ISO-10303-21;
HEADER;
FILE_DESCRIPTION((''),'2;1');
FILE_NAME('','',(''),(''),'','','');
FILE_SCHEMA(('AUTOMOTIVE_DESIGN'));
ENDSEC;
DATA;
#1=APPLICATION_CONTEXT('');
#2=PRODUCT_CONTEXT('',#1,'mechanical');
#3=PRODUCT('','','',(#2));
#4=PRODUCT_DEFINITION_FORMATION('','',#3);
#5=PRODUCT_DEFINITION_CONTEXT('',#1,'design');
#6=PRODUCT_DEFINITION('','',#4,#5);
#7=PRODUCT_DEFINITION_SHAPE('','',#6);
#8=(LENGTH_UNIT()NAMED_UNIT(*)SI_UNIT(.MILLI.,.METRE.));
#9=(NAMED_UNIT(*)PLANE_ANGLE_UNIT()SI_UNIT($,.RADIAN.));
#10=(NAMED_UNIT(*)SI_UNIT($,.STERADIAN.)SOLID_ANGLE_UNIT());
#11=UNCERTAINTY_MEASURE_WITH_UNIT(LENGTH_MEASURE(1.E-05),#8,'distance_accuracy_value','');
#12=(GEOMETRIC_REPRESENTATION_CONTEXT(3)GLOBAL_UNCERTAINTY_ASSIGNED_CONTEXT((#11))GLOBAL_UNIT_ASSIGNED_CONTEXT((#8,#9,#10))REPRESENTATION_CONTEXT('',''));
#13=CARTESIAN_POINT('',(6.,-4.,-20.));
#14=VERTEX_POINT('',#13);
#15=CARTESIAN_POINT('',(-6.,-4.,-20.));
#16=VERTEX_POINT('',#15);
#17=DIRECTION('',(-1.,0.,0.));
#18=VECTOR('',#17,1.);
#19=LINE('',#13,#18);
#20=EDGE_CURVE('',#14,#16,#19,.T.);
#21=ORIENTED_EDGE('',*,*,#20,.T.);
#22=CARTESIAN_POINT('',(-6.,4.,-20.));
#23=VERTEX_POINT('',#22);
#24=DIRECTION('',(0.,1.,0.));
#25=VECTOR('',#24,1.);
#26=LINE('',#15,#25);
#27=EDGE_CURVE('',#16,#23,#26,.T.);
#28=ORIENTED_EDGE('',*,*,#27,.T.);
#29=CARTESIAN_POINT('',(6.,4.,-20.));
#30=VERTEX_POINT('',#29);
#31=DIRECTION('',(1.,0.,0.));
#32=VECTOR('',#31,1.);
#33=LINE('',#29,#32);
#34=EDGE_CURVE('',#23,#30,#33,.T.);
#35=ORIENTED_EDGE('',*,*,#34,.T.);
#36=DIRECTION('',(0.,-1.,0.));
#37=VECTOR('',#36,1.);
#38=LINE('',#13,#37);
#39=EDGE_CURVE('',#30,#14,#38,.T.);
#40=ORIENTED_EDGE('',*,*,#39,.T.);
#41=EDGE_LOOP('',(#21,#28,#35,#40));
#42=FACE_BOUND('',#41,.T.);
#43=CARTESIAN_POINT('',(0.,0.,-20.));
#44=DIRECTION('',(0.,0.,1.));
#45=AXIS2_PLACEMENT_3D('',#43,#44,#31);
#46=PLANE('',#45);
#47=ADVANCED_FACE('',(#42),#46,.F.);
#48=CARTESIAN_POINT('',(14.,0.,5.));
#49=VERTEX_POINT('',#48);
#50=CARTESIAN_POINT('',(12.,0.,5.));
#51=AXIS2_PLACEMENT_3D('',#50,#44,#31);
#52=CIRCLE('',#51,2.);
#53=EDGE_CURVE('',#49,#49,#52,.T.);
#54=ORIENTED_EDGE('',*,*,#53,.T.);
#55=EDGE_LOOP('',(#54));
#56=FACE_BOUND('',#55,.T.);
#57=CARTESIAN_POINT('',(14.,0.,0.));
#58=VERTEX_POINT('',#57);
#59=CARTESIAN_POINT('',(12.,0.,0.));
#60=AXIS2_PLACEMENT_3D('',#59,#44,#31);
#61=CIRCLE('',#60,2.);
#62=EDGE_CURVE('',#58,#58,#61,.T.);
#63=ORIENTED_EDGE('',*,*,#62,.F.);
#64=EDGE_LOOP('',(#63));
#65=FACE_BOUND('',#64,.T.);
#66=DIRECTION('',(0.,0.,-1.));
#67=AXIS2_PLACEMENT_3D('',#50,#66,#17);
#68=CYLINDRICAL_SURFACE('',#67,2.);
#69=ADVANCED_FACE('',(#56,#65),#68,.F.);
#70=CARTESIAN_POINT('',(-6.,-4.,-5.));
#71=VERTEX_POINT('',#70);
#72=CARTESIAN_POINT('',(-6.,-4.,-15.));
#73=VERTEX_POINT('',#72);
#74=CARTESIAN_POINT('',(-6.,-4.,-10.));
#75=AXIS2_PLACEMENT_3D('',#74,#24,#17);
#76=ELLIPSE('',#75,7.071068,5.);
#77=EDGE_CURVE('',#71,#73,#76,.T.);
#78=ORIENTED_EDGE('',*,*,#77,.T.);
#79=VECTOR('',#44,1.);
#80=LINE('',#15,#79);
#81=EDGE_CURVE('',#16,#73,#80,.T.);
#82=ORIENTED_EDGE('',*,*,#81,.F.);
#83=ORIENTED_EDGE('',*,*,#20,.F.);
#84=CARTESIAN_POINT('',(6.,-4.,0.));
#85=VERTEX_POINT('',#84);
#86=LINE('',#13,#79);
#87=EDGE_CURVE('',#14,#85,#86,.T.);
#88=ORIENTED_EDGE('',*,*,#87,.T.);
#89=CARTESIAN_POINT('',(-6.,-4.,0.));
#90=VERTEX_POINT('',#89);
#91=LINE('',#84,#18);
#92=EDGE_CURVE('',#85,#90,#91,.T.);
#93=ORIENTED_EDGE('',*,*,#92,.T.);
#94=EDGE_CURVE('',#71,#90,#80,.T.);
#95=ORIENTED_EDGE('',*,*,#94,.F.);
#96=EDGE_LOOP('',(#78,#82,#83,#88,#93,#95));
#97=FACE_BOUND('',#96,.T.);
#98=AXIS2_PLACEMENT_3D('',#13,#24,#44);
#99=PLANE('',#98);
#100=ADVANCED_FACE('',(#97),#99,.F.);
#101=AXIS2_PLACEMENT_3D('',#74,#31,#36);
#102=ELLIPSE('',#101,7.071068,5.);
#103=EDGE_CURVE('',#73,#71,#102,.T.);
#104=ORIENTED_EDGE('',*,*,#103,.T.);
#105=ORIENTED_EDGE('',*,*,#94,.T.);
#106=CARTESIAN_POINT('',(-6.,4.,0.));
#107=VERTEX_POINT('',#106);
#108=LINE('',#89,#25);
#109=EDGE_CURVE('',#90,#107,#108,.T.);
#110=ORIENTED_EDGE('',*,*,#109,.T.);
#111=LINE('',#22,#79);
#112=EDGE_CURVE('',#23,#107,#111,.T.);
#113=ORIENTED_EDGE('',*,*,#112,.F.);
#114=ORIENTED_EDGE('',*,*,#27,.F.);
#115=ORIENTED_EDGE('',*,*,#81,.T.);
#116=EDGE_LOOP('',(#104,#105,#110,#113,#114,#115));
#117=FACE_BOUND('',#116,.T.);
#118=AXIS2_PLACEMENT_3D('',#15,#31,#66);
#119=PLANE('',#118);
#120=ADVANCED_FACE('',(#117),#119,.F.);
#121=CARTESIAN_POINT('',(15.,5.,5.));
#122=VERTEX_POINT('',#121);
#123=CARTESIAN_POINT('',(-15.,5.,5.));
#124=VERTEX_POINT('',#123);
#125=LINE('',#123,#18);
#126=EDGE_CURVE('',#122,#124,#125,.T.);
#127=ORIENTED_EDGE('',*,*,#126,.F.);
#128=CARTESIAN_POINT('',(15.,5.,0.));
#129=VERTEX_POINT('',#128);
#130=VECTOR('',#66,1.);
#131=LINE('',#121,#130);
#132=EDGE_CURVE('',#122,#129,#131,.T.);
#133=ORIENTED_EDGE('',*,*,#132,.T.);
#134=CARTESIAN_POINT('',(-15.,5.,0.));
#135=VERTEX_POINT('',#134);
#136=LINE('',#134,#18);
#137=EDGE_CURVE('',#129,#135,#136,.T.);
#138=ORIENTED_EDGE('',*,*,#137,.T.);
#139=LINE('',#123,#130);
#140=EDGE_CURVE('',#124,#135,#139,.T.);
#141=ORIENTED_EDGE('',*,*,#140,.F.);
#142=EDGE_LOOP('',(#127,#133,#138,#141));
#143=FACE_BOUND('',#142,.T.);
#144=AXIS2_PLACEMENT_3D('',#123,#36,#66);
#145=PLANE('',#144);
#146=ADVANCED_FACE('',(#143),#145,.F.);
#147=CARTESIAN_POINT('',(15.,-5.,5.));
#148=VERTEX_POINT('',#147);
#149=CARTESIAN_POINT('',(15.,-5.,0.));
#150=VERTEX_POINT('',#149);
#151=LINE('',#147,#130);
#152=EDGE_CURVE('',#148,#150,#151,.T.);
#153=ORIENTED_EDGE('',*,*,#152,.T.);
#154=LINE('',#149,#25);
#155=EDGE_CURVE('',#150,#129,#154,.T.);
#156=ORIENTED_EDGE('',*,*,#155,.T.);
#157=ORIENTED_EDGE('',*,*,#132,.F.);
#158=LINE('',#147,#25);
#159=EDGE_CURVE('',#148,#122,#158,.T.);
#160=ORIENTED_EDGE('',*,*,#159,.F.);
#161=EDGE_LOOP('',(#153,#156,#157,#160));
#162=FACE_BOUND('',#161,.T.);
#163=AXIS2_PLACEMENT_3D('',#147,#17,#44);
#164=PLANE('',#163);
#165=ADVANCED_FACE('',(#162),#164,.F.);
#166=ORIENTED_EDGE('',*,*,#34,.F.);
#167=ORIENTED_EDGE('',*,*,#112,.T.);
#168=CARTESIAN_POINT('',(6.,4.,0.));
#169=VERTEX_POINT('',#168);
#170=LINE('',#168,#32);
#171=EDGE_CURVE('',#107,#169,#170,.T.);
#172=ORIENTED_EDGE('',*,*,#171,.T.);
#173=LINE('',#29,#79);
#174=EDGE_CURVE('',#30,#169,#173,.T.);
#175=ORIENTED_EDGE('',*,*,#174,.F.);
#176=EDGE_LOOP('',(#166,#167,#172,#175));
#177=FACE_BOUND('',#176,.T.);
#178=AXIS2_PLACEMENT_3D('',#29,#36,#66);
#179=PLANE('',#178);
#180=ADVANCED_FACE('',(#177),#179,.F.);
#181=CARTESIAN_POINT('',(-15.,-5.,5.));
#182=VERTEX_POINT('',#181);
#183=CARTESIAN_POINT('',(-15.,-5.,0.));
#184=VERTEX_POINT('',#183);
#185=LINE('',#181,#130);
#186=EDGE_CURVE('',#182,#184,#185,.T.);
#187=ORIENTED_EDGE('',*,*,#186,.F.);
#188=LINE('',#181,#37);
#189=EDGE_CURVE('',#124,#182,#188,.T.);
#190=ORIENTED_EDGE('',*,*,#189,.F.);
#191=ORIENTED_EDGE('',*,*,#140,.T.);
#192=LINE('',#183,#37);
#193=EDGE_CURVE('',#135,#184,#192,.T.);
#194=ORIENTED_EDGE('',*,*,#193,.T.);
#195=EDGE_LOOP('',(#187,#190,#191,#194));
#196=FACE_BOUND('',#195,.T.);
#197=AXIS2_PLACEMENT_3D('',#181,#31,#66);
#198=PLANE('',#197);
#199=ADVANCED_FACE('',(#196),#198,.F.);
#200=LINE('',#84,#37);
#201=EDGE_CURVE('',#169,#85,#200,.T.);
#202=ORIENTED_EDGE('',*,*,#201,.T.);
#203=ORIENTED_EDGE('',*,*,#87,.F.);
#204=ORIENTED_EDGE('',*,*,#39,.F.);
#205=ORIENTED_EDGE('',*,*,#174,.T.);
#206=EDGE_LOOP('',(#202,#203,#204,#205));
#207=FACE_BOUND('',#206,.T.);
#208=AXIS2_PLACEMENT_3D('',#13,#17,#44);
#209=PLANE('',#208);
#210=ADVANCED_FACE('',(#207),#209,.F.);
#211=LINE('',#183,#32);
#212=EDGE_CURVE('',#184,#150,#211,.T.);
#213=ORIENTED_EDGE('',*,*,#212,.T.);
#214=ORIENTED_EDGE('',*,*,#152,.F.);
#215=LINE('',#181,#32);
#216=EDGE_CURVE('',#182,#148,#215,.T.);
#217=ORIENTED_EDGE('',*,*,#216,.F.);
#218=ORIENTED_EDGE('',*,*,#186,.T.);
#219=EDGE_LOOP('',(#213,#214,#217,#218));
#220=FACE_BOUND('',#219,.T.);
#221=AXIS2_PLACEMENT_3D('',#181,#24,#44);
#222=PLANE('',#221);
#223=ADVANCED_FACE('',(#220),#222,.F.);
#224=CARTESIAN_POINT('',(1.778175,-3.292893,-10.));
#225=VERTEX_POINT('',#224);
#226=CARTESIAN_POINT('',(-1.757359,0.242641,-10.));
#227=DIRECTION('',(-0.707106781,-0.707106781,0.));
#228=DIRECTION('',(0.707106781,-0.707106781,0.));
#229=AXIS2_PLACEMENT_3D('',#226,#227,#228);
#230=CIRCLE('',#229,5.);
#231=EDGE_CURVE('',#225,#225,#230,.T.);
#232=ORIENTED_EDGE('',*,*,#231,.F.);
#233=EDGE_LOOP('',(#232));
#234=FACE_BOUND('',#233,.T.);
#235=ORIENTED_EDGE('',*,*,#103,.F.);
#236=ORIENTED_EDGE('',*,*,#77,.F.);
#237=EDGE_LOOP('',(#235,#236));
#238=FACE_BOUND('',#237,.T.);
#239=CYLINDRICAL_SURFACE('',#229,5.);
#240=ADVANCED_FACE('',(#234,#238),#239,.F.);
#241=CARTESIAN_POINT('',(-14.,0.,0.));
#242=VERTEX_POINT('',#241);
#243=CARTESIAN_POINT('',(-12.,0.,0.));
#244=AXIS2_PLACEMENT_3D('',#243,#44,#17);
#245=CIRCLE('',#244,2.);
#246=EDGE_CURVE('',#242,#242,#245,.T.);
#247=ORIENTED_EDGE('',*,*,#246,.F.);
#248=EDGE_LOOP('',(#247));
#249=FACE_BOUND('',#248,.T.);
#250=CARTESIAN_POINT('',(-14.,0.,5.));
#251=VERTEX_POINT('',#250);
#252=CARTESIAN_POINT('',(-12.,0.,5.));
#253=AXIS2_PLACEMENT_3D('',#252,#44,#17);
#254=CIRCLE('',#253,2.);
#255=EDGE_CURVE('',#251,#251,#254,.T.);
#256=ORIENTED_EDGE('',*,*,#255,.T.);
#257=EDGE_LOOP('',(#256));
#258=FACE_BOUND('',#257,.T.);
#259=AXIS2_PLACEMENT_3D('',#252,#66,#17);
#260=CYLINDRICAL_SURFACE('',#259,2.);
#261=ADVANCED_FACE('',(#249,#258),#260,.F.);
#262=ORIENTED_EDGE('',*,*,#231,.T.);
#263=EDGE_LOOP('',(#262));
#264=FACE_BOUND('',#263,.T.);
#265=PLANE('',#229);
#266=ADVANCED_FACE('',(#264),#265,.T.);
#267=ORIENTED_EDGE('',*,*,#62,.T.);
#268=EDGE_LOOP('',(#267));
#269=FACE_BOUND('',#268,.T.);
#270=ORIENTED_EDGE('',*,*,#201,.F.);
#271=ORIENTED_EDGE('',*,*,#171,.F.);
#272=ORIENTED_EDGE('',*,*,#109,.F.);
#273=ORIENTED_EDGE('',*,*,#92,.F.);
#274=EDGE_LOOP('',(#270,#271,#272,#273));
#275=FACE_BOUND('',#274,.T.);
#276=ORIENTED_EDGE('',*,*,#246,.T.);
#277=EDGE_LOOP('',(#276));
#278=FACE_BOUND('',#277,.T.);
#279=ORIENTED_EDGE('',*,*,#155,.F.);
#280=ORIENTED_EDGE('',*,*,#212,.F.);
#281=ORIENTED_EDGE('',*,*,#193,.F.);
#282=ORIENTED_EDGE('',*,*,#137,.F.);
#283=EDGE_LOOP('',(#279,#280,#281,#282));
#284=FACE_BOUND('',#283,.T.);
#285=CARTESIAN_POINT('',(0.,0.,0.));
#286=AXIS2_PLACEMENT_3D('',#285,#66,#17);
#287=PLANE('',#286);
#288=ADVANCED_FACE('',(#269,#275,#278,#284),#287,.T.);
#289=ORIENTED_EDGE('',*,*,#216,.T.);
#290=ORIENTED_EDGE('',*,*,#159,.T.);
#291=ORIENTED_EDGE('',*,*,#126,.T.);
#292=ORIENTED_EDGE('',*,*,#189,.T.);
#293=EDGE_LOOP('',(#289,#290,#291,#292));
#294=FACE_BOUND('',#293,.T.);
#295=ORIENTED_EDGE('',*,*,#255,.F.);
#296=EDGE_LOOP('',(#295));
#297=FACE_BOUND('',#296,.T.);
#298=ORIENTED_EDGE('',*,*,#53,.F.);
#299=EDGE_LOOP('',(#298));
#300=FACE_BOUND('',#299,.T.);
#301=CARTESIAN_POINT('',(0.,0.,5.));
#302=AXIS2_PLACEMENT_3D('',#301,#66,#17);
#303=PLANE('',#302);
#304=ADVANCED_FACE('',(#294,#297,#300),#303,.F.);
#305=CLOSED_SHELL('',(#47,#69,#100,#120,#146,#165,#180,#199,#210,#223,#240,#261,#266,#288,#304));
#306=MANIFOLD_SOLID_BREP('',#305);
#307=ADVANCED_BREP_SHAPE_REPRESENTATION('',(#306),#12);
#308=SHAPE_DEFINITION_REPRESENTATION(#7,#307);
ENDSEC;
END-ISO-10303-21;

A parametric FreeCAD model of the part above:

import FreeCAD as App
import Part
import Sketcher

V = App.Vector
Q = App.Units.Quantity


def add_polygon(sketch, points):
    """Adds a closed chain of lines whose ends are joined by coincident constraints."""
    first, n = sketch.GeometryCount, len(points)
    for a, b in zip(points, points[1:] + points[:1]):
        sketch.addGeometry(Part.LineSegment(App.Vector(*a, 0), App.Vector(*b, 0)), False)
    for i in range(n):
        sketch.addConstraint(Sketcher.Constraint("Coincident", first + i, 2, first + (i + 1) % n, 1))

doc = App.newDocument("Part")
params = doc.addObject("Spreadsheet::Sheet", "Params")
for row, (alias, value) in enumerate([
    ("sketch1_diameter", "4 mm"),
    ("sketch1_width", "30 mm"),
    ("sketch1_height", "10 mm"),
    ("pad1_length", "5 mm"),
    ("sketch2_width", "12 mm"),
    ("sketch2_height", "8 mm"),
    ("pad2_length", "20 mm"),
    ("sketch3_diameter", "10 mm"),
    ("pocket1_length", "6 mm"),
], start=1):
    params.set(f"A{row}", alias)
    params.set(f"B{row}", "=" + value)
    params.setAlias(f"B{row}", alias)

body = doc.addObject("PartDesign::Body", "Body")

# Sketch on XY plane
sketch1 = body.newObject("Sketcher::SketchObject", "Sketch")
sketch1.AttachmentSupport = (doc.getObject("XY_Plane"), [""])
sketch1.MapMode = "FlatFace"
add_polygon(sketch1, [(-15, 5), (-15, -5), (15, -5), (15, 5)])  # lines 0-3
sketch1.addGeometry(Part.Circle(V(-12, 0, 0), V(0, 0, 1), 2), False)  # 4
sketch1.addGeometry(Part.Circle(V(12, 0, 0), V(0, 0, 1), 2), False)  # 5
sketch1.addConstraint(Sketcher.Constraint("Vertical", 0))
sketch1.addConstraint(Sketcher.Constraint("Horizontal", 1))
sketch1.addConstraint(Sketcher.Constraint("Vertical", 2))
sketch1.addConstraint(Sketcher.Constraint("Horizontal", 3))
sketch1.addConstraint(Sketcher.Constraint("Equal", 4, 5))
sketch1.addConstraint(Sketcher.Constraint("Symmetric", 4, 3, 5, 3, -1, 1))
sketch1.addConstraint(Sketcher.Constraint("Symmetric", 0, 2, 2, 2, -1, 1))
sketch1.addConstraint(Sketcher.Constraint("PointOnObject", 4, 3, -1))
sketch1.addConstraint(Sketcher.Constraint("Diameter", 4, Q("4 mm")))
sketch1.addConstraint(Sketcher.Constraint("DistanceX", 1, 1, 1, 2, Q("30 mm")))
sketch1.addConstraint(Sketcher.Constraint("DistanceY", 0, 2, 0, 1, Q("10 mm")))
sketch1.addConstraint(Sketcher.Constraint("DistanceX", 4, 3, -1, 1, Q("12 mm")))
sketch1.setExpression("Constraints[12]", "Params.sketch1_diameter")
sketch1.setExpression("Constraints[13]", "Params.sketch1_width")
sketch1.setExpression("Constraints[14]", "Params.sketch1_height")
pad1 = body.newObject("PartDesign::Pad", "Pad")
pad1.Profile = sketch1
pad1.setExpression("Length", "Params.pad1_length")

# Sketch on XY plane
sketch2 = body.newObject("Sketcher::SketchObject", "Sketch001")
sketch2.AttachmentSupport = (doc.getObject("XY_Plane"), [""])
sketch2.MapMode = "FlatFace"
add_polygon(sketch2, [(6, 4), (6, -4), (-6, -4), (-6, 4)])  # lines 0-3
sketch2.addConstraint(Sketcher.Constraint("Vertical", 0))
sketch2.addConstraint(Sketcher.Constraint("Horizontal", 1))
sketch2.addConstraint(Sketcher.Constraint("Vertical", 2))
sketch2.addConstraint(Sketcher.Constraint("Horizontal", 3))
sketch2.addConstraint(Sketcher.Constraint("Symmetric", 0, 2, 2, 2, -1, 1))
sketch2.addConstraint(Sketcher.Constraint("DistanceX", 1, 2, 1, 1, Q("12 mm")))
sketch2.addConstraint(Sketcher.Constraint("DistanceY", 0, 2, 0, 1, Q("8 mm")))
sketch2.setExpression("Constraints[9]", "Params.sketch2_width")
sketch2.setExpression("Constraints[10]", "Params.sketch2_height")
pad2 = body.newObject("PartDesign::Pad", "Pad001")
pad2.Profile = sketch2
pad2.setExpression("Length", "Params.pad2_length")
pad2.Reversed = True

# Sketch on an angled plane
sketch3 = body.newObject("Sketcher::SketchObject", "Sketch002")
sketch3.Placement = App.Placement(V(-5, -5, 0), App.Rotation(V(-0.707106781, 0.707106781, 0), V(0, 0, -0.999999999), V(-0.707106781, -0.707106781, 0), "ZXY"))
sketch3.addGeometry(Part.Circle(V(1, 10, 0), V(0, 0, 1), 5), False)
sketch3.addConstraint(Sketcher.Constraint("Diameter", 0, Q("10 mm")))
sketch3.addConstraint(Sketcher.Constraint("DistanceY", -1, 1, 0, 3, Q("10 mm")))
sketch3.addConstraint(Sketcher.Constraint("DistanceX", -1, 1, 0, 3, Q("1.414214 mm")))
sketch3.setExpression("Constraints[0]", "Params.sketch3_diameter")
pocket1 = body.newObject("PartDesign::Pocket", "Pocket")
pocket1.Profile = sketch3
pocket1.setExpression("Length", "Params.pocket1_length")

doc.recompute()
